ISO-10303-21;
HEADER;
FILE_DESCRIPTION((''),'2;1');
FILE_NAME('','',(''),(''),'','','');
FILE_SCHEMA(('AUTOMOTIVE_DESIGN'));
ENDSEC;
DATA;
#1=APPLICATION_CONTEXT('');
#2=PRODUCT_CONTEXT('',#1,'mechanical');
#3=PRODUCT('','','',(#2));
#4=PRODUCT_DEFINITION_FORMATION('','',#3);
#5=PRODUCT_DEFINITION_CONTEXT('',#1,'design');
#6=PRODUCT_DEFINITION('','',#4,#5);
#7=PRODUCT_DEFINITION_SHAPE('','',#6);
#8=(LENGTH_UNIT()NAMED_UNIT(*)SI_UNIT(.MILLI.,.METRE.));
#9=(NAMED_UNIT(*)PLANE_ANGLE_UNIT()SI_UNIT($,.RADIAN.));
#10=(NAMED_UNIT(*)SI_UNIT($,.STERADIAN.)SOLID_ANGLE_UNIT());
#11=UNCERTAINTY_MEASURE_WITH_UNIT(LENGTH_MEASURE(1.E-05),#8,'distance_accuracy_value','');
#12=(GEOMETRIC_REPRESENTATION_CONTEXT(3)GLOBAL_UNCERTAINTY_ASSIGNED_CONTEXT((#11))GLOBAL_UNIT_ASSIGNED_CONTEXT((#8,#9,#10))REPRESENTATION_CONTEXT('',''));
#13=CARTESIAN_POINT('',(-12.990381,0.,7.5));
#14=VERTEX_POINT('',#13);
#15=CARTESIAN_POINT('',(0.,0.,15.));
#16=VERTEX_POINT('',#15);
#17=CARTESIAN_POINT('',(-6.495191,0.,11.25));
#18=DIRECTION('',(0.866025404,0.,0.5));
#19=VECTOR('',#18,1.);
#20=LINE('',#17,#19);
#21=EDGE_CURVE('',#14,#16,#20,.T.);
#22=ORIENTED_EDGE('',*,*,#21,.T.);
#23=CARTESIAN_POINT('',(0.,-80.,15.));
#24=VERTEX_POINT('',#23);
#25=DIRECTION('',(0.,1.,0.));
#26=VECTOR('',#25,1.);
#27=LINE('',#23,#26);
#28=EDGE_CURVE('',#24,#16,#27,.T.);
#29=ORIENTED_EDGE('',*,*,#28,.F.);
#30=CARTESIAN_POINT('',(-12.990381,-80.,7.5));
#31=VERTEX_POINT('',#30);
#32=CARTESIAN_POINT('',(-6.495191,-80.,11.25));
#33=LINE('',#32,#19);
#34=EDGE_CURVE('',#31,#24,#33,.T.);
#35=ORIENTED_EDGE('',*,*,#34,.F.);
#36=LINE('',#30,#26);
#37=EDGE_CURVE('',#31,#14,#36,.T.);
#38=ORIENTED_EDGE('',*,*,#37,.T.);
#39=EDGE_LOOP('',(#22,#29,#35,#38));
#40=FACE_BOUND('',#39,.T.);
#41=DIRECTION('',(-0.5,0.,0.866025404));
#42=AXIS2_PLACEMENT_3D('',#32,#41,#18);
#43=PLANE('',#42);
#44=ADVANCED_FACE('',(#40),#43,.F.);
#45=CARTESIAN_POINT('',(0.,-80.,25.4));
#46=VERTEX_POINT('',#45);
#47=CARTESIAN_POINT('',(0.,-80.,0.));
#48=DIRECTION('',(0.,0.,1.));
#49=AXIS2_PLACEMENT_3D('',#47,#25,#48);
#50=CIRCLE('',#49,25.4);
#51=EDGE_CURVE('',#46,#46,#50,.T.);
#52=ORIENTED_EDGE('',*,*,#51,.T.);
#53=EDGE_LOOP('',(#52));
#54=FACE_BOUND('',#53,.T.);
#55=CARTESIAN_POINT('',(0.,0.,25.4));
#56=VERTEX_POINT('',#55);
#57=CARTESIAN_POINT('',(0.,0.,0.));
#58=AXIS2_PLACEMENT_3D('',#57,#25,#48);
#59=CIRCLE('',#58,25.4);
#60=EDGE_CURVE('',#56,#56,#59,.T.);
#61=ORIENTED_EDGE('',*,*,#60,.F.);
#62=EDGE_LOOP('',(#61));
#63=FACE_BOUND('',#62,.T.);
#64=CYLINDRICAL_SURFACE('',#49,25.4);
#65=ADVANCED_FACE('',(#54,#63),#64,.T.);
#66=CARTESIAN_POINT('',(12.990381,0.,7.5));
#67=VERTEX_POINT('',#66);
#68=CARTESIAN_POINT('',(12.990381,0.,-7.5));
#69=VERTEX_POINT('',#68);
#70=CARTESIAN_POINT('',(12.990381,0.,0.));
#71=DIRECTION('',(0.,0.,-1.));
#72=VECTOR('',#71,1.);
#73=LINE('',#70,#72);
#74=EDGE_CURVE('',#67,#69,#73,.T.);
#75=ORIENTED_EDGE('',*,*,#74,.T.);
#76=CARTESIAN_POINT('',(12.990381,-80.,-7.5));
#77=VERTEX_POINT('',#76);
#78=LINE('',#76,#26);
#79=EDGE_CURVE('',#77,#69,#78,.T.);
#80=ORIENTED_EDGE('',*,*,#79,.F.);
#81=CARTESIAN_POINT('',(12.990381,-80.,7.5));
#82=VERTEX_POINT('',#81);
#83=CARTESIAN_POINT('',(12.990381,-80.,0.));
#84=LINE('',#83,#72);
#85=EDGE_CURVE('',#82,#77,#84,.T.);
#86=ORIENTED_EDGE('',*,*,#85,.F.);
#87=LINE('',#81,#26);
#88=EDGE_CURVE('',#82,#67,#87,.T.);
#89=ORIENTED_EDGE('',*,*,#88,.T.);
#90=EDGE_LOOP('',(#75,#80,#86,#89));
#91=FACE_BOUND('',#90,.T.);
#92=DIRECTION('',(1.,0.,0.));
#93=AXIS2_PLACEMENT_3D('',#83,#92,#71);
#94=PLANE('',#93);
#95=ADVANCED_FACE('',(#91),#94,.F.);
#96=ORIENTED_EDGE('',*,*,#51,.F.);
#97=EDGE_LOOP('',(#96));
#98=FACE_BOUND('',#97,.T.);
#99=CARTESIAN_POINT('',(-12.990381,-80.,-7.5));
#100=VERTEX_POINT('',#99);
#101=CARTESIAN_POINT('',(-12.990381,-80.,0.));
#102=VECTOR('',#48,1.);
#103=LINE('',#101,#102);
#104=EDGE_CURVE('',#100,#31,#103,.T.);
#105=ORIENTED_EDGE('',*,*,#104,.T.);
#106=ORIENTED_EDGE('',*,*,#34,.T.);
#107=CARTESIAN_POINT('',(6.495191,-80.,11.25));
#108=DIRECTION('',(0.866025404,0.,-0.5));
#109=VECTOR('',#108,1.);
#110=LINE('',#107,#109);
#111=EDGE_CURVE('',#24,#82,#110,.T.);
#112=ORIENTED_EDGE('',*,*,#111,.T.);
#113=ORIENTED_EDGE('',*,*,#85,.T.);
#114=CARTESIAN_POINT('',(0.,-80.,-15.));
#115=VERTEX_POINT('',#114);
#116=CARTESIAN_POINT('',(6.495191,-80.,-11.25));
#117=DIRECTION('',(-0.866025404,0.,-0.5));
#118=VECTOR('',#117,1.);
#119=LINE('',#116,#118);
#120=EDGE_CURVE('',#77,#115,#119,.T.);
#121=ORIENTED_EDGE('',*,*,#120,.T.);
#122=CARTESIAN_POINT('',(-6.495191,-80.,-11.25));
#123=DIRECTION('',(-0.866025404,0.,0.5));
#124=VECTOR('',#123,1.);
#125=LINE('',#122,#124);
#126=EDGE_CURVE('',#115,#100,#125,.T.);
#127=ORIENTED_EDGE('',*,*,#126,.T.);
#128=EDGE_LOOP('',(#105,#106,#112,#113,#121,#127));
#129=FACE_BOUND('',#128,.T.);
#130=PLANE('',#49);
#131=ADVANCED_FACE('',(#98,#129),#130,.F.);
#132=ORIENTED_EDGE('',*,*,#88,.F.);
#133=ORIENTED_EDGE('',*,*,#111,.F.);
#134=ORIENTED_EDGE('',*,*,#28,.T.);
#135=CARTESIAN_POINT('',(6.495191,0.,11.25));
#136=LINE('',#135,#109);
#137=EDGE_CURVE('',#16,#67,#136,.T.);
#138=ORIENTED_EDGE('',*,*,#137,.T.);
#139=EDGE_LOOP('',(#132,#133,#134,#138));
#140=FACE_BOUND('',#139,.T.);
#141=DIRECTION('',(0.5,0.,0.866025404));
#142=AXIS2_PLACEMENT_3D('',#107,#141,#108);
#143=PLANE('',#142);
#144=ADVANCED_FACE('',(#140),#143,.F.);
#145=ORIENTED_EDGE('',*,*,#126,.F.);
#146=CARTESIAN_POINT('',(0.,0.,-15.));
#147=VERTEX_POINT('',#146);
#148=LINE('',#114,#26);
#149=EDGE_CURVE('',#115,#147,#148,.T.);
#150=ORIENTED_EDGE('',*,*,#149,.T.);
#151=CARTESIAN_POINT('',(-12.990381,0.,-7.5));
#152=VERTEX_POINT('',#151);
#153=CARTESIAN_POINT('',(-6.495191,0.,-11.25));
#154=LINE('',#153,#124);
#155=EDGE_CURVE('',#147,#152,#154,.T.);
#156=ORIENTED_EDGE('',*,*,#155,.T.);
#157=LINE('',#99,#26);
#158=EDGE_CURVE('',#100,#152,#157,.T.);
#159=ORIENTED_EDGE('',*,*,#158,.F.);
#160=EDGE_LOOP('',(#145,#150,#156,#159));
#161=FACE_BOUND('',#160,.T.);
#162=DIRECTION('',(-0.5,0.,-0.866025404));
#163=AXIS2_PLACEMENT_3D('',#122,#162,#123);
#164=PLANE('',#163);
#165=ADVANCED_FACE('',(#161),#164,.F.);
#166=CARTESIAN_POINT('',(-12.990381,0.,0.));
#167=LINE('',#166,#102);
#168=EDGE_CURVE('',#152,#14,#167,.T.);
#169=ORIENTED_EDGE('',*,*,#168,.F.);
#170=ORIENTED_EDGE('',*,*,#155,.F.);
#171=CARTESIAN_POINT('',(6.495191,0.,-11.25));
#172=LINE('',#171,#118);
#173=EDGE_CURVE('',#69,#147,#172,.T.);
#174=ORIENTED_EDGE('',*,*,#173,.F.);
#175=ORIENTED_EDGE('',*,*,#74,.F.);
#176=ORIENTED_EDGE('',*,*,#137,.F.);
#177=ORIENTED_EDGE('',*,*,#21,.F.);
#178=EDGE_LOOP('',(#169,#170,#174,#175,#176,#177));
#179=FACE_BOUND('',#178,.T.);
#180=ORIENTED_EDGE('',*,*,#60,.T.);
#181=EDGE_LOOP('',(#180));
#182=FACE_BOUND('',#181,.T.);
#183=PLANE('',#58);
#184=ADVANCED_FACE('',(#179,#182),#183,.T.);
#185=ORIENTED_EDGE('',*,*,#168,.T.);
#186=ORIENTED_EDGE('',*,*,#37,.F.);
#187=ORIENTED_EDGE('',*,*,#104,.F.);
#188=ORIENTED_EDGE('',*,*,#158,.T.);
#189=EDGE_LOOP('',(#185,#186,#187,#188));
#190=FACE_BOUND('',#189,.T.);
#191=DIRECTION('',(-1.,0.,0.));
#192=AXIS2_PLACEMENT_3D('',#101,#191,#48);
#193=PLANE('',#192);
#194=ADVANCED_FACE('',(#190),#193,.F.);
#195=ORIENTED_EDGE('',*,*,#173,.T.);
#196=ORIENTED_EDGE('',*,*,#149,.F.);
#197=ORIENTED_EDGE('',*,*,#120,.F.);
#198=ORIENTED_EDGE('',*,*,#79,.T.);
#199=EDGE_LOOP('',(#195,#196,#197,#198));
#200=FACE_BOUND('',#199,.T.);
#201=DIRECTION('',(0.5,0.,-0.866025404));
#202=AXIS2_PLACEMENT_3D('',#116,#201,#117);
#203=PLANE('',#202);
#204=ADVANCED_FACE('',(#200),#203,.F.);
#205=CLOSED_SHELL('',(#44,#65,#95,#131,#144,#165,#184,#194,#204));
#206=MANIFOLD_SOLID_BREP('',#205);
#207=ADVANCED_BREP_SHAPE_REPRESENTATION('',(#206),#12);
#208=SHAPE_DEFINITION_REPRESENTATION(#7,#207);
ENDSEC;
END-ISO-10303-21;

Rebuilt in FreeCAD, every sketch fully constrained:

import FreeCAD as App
import Part
import Sketcher
from FreeCAD import Vector
Q = App.Units.Quantity


def add_polygon(sketch, points):
    """Adds a closed chain of lines whose ends are joined by coincident constraints."""
    first, n = sketch.GeometryCount, len(points)
    for a, b in zip(points, points[1:] + points[:1]):
        sketch.addGeometry(Part.LineSegment(App.Vector(*a, 0), App.Vector(*b, 0)), False)
    for i in range(n):
        sketch.addConstraint(Sketcher.Constraint("Coincident", first + i, 2, first + (i + 1) % n, 1))

doc = App.newDocument("Part")
body = doc.addObject("PartDesign::Body", "Body")

# Sketch on XZ plane
sketch1 = doc.addObject("Sketcher::SketchObject", "Sketch")
body.addObject(sketch1)
sketch1.AttachmentSupport = (doc.XZ_Plane, [""])
sketch1.MapMode = "FlatFace"
sketch1.addGeometry(Part.Circle(Vector(0, 0, 0), Vector(0, 0, 1), 25), False)  # 0
add_polygon(sketch1, [(0, -15), (13, -8), (13, 8), (0, 15), (-13, 8), (-13, -8)])  # lines 1-6
sketch1.addConstraint(Sketcher.Constraint("Vertical", 2))
sketch1.addConstraint(Sketcher.Constraint("Vertical", 5))
sketch1.addConstraint(Sketcher.Constraint("Coincident", 0, 3, -1, 1))
sketch1.addConstraint(Sketcher.Constraint("Symmetric", 1, 2, 4, 2, -1, 1))
sketch1.addConstraint(Sketcher.Constraint("Symmetric", 3, 2, 6, 2, -1, 1))
sketch1.addConstraint(Sketcher.Constraint("PointOnObject", 3, 2, -2))
sketch1.addConstraint(Sketcher.Constraint("Parallel", 3, 6))
sketch1.addConstraint(Sketcher.Constraint("Horizontal", 2, 2, 4, 2))
sketch1.addConstraint(Sketcher.Constraint("Diameter", 0, Q("50.8 mm")))
sketch1.addConstraint(Sketcher.Constraint("DistanceY", 2, 1, 2, 2, Q("15 mm")))
sketch1.addConstraint(Sketcher.Constraint("Angle", 1, Q("30 deg")))
sketch1.addConstraint(Sketcher.Constraint("Distance", 1, Q("15 mm")))
pad1 = doc.addObject("PartDesign::Pad", "Pad")
body.addObject(pad1)
pad1.Profile = sketch1
pad1.Length = 80

doc.recompute()
